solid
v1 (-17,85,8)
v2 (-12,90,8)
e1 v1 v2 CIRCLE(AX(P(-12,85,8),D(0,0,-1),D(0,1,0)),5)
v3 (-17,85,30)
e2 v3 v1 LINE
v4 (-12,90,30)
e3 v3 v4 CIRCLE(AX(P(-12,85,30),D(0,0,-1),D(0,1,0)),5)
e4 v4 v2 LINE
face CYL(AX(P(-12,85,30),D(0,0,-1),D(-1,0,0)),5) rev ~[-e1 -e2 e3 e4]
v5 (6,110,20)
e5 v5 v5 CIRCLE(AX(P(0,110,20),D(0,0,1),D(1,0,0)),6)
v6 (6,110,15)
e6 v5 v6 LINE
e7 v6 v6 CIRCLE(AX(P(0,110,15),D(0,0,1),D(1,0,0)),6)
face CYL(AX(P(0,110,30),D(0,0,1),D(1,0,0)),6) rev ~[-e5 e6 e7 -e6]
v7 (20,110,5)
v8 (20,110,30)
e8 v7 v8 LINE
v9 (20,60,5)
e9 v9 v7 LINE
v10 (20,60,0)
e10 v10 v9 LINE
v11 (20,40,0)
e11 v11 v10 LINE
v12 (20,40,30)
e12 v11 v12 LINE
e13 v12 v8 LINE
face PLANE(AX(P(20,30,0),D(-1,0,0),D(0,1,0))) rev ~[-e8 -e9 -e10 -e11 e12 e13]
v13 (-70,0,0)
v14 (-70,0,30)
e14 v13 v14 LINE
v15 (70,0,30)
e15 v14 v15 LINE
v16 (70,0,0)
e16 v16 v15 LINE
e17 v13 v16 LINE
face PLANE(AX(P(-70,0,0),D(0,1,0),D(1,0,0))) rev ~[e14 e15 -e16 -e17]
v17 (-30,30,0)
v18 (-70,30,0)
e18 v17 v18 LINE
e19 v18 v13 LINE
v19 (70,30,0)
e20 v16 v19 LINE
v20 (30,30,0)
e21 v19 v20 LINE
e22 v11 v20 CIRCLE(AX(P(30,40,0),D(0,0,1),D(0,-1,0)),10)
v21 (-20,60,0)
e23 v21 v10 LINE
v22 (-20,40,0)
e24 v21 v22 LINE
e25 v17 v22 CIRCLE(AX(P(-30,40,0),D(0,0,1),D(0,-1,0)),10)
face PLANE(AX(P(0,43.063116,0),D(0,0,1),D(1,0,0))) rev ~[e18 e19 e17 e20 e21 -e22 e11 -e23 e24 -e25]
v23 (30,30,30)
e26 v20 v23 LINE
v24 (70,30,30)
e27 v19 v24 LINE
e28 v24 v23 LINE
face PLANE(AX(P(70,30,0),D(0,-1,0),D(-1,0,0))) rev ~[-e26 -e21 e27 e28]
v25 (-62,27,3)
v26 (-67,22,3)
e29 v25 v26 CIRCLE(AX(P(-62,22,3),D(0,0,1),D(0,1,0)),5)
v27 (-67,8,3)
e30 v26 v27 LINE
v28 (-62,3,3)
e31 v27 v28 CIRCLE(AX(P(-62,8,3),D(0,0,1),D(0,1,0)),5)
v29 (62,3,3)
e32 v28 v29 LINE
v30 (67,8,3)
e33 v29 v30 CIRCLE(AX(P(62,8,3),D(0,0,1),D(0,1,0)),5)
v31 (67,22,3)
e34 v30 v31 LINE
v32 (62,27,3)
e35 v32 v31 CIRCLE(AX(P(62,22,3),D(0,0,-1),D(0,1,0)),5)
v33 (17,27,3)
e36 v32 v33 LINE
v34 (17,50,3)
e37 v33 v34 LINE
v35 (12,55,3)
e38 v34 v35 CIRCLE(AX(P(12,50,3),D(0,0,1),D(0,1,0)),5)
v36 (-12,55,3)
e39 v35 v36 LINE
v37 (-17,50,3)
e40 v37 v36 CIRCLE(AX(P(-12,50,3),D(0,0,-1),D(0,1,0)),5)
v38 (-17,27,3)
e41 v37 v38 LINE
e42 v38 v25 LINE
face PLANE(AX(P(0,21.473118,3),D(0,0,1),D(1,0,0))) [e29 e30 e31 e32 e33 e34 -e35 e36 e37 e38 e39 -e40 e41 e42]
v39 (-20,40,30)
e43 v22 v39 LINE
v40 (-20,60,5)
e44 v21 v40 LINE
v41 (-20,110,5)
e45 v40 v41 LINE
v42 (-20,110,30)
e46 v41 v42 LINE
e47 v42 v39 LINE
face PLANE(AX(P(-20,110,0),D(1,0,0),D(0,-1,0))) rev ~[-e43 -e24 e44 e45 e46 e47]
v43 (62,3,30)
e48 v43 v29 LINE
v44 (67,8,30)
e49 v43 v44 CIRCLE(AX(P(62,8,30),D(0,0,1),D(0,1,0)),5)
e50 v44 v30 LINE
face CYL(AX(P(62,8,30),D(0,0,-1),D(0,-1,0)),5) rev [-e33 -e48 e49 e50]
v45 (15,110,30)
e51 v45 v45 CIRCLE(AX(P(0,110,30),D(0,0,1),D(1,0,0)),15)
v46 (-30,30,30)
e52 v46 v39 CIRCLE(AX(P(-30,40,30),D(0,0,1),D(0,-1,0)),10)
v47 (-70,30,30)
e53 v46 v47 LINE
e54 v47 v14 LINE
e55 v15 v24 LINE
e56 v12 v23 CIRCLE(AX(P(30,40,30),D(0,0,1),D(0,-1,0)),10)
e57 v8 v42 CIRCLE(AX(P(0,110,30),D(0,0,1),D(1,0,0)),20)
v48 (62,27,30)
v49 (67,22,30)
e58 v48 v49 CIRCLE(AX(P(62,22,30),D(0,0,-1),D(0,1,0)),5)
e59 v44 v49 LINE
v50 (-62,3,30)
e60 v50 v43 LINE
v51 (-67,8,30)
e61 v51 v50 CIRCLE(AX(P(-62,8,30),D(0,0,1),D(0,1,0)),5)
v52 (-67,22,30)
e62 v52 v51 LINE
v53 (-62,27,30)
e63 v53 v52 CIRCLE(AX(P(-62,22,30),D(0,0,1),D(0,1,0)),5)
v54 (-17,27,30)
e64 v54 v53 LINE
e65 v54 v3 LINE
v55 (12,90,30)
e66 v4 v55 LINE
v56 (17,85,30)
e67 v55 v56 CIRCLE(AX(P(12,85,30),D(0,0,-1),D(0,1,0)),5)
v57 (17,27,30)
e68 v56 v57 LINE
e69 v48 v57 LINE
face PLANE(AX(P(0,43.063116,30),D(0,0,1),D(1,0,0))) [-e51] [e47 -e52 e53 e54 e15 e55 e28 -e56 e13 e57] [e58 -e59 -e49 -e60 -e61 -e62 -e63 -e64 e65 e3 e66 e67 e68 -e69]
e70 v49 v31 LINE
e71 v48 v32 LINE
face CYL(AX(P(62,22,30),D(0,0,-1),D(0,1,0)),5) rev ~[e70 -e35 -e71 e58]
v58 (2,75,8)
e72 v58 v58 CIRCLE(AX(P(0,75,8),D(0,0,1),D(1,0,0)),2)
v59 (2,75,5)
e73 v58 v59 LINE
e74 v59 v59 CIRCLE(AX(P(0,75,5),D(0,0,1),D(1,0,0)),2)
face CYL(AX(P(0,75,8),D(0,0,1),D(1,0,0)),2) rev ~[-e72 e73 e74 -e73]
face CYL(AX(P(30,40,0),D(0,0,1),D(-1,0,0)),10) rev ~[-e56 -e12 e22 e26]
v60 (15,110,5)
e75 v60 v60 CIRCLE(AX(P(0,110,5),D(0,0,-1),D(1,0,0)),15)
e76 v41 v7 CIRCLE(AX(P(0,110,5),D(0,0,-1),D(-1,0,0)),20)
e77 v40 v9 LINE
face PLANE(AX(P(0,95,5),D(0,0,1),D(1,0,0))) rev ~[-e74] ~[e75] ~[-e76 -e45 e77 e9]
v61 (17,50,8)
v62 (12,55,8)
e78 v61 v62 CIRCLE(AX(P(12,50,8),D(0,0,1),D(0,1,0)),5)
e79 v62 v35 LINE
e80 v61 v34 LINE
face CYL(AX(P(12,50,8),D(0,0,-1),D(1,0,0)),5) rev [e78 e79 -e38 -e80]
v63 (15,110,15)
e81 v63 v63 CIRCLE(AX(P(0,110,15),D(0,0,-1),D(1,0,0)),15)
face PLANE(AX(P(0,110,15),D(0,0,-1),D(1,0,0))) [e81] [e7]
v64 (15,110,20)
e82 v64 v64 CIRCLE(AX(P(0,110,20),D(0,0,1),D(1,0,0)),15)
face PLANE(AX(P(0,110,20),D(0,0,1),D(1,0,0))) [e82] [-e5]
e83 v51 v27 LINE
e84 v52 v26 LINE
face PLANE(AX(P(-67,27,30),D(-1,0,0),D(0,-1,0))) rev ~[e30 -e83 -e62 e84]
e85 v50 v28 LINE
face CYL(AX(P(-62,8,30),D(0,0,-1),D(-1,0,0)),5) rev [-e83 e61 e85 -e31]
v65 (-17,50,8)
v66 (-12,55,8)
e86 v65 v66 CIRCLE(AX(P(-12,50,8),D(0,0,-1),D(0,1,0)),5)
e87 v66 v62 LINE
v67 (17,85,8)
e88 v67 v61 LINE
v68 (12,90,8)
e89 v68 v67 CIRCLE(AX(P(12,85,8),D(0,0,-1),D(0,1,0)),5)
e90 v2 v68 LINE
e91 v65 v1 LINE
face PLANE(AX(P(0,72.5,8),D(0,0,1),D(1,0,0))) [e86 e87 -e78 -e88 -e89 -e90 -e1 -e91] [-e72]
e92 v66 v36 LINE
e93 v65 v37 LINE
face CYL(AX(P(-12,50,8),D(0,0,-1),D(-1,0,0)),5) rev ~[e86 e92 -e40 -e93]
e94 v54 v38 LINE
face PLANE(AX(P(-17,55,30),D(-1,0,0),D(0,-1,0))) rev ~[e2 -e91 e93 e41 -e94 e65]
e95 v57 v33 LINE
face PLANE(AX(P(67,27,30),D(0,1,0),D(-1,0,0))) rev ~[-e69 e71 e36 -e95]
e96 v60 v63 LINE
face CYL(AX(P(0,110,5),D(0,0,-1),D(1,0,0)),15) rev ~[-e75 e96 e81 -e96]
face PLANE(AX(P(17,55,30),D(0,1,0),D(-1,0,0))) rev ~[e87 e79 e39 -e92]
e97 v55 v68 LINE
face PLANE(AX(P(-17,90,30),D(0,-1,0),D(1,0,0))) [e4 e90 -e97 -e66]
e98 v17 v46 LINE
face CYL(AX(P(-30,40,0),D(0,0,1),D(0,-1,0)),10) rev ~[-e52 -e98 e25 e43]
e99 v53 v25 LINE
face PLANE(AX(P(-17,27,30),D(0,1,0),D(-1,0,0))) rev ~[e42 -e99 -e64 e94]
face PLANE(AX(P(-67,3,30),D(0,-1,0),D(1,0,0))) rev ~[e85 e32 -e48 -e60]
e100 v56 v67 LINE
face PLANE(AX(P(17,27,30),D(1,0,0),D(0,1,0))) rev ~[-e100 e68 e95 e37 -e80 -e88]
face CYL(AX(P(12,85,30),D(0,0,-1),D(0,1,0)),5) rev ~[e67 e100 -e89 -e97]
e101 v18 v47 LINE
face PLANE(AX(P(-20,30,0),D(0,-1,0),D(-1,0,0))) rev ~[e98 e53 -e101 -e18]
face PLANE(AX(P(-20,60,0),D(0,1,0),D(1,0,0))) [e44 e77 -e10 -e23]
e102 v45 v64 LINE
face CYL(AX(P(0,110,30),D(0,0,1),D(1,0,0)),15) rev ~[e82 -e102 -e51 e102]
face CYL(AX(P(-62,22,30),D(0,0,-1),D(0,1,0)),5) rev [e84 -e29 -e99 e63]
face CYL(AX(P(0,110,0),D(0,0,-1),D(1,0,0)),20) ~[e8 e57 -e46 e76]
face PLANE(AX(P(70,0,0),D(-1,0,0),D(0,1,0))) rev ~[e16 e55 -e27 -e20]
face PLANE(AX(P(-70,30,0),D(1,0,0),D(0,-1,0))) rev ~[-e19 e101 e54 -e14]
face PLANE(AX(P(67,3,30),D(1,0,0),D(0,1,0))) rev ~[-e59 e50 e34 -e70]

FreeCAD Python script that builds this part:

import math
import FreeCAD as App
import Part
import Sketcher
from FreeCAD import Vector


def edges_at(feature, points):
    """Names of the edges that pass closest to the given points."""
    edges = feature.Shape.Edges
    near = lambda p: min(range(len(edges)), key=lambda i: edges[i].distToShape(Part.Vertex(*p))[0])
    return sorted({f"Edge{near(p) + 1}" for p in points})

doc = App.newDocument("Part")
body = doc.addObject("PartDesign::Body", "Body")

sketch1 = body.newObject("Sketcher::SketchObject", "Sketch")
sketch1.AttachmentSupport = (doc.getObject("XY_Plane"), [""])
sketch1.MapMode = "FlatFace"
sketch1.addGeometry([
    Part.LineSegment(Vector(20, 30, 0), Vector(20, 110, 0)),
    Part.ArcOfCircle(Part.Circle(Vector(0, 110, 0), Vector(0, 0, 1), 20), math.radians(0), math.radians(180)),
    Part.LineSegment(Vector(-20, 110, 0), Vector(-20, 30, 0)),
    Part.LineSegment(Vector(-20, 30, 0), Vector(-70, 30, 0)),
    Part.LineSegment(Vector(-70, 30, 0), Vector(-70, 0, 0)),
    Part.LineSegment(Vector(-70, 0, 0), Vector(70, 0, 0)),
    Part.LineSegment(Vector(70, 0, 0), Vector(70, 30, 0)),
    Part.LineSegment(Vector(70, 30, 0), Vector(20, 30, 0)),
], False)
sketch1.addConstraint([
    Sketcher.Constraint("Tangent", 0, 2, 1, 1),
    Sketcher.Constraint("Tangent", 1, 2, 2, 1),
    Sketcher.Constraint("Coincident", 2, 2, 3, 1),
    Sketcher.Constraint("Coincident", 3, 2, 4, 1),
    Sketcher.Constraint("Coincident", 4, 2, 5, 1),
    Sketcher.Constraint("Coincident", 5, 2, 6, 1),
    Sketcher.Constraint("Coincident", 6, 2, 7, 1),
    Sketcher.Constraint("Coincident", 7, 2, 0, 1),
    Sketcher.Constraint("Vertical", 0),
    Sketcher.Constraint("Vertical", 2),
    Sketcher.Constraint("Horizontal", 3),
    Sketcher.Constraint("Vertical", 4),
    Sketcher.Constraint("Horizontal", 5),
    Sketcher.Constraint("Vertical", 6),
    Sketcher.Constraint("Horizontal", 7),
    Sketcher.Constraint("Symmetric", 4, 2, 5, 2, -1, 1),
    Sketcher.Constraint("Symmetric", 2, 2, 7, 2, -2),
    Sketcher.Constraint("Radius", 1, 20.0),
    Sketcher.Constraint("DistanceX", 3, 2, 3, 1, 50.0),
    Sketcher.Constraint("DistanceY", 0, 1, 0, 2, 80.0),
    Sketcher.Constraint("DistanceY", 4, 2, 4, 1, 30.0),
])
pad1 = body.newObject("PartDesign::Pad", "Pad")
pad1.Profile = sketch1
pad1.Length = 30

sketch2 = body.newObject("Sketcher::SketchObject", "Sketch001")
sketch2.AttachmentSupport = (doc.getObject("XY_Plane"), [""])
sketch2.MapMode = "FlatFace"
sketch2.addGeometry([
    Part.LineSegment(Vector(-20, 130, 0), Vector(-20, 60, 0)),
    Part.LineSegment(Vector(-20, 60, 0), Vector(20, 60, 0)),
    Part.LineSegment(Vector(20, 60, 0), Vector(20, 130, 0)),
    Part.LineSegment(Vector(20, 130, 0), Vector(-20, 130, 0)),
], False)
sketch2.addConstraint([
    Sketcher.Constraint("Coincident", 0, 2, 1, 1),
    Sketcher.Constraint("Coincident", 1, 2, 2, 1),
    Sketcher.Constraint("Coincident", 2, 2, 3, 1),
    Sketcher.Constraint("Coincident", 3, 2, 0, 1),
    Sketcher.Constraint("Vertical", 0),
    Sketcher.Constraint("Horizontal", 1),
    Sketcher.Constraint("Vertical", 2),
    Sketcher.Constraint("Horizontal", 3),
    Sketcher.Constraint("DistanceX", 1, 1, 1, 2, 40.0),
    Sketcher.Constraint("DistanceY", 0, 2, 0, 1, 70.0),
    Sketcher.Constraint("DistanceX", 0, 2, -1, 1, 20.0),
    Sketcher.Constraint("DistanceY", -1, 1, 0, 2, 60.0),
])
pocket1 = body.newObject("PartDesign::Pocket", "Pocket")
pocket1.Profile = sketch2
pocket1.Length = 5
pocket1.Reversed = True

sketch3 = body.newObject("Sketcher::SketchObject", "Sketch002")
sketch3.AttachmentSupport = (doc.getObject("XY_Plane"), [""])
sketch3.MapMode = "FlatFace"
sketch3.AttachmentOffset = App.Placement(Vector(0, 0, 30), App.Rotation())
sketch3.addGeometry([
    Part.LineSegment(Vector(-17, 55, 0), Vector(-17, 27, 0)),
    Part.LineSegment(Vector(-17, 27, 0), Vector(-67, 27, 0)),
    Part.LineSegment(Vector(-67, 27, 0), Vector(-67, 3, 0)),
    Part.LineSegment(Vector(-67, 3, 0), Vector(67, 3, 0)),
    Part.LineSegment(Vector(67, 3, 0), Vector(67, 27, 0)),
    Part.LineSegment(Vector(67, 27, 0), Vector(17, 27, 0)),
    Part.LineSegment(Vector(17, 27, 0), Vector(17, 55, 0)),
    Part.LineSegment(Vector(17, 55, 0), Vector(-17, 55, 0)),
], False)
sketch3.addConstraint([
    Sketcher.Constraint("Coincident", 0, 2, 1, 1),
    Sketcher.Constraint("Coincident", 1, 2, 2, 1),
    Sketcher.Constraint("Coincident", 2, 2, 3, 1),
    Sketcher.Constraint("Coincident", 3, 2, 4, 1),
    Sketcher.Constraint("Coincident", 4, 2, 5, 1),
    Sketcher.Constraint("Coincident", 5, 2, 6, 1),
    Sketcher.Constraint("Coincident", 6, 2, 7, 1),
    Sketcher.Constraint("Coincident", 7, 2, 0, 1),
    Sketcher.Constraint("Vertical", 0),
    Sketcher.Constraint("Horizontal", 1),
    Sketcher.Constraint("Vertical", 2),
    Sketcher.Constraint("Horizontal", 3),
    Sketcher.Constraint("Vertical", 4),
    Sketcher.Constraint("Horizontal", 5),
    Sketcher.Constraint("Vertical", 6),
    Sketcher.Constraint("Horizontal", 7),
    Sketcher.Constraint("Symmetric", 1, 2, 4, 2, -2),
    Sketcher.Constraint("Equal", 1, 5),
    Sketcher.Constraint("DistanceX", 1, 2, 1, 1, 50.0),
    Sketcher.Constraint("DistanceX", 3, 1, 3, 2, 134.0),
    Sketcher.Constraint("DistanceY", 0, 2, 0, 1, 28.0),
    Sketcher.Constraint("DistanceY", 2, 2, 2, 1, 24.0),
    Sketcher.Constraint("DistanceY", -1, 1, 0, 2, 27.0),
])
pocket2 = body.newObject("PartDesign::Pocket", "Pocket001")
pocket2.Profile = sketch3
pocket2.Length = 27

sketch4 = body.newObject("Sketcher::SketchObject", "Sketch003")
sketch4.AttachmentSupport = (doc.getObject("XY_Plane"), [""])
sketch4.MapMode = "FlatFace"
sketch4.AttachmentOffset = App.Placement(Vector(0, 0, 30), App.Rotation())
sketch4.addGeometry([
    Part.LineSegment(Vector(-17, 90, 0), Vector(-17, 55, 0)),
    Part.LineSegment(Vector(-17, 55, 0), Vector(17, 55, 0)),
    Part.LineSegment(Vector(17, 55, 0), Vector(17, 90, 0)),
    Part.LineSegment(Vector(17, 90, 0), Vector(-17, 90, 0)),
], False)
sketch4.addConstraint([
    Sketcher.Constraint("Coincident", 0, 2, 1, 1),
    Sketcher.Constraint("Coincident", 1, 2, 2, 1),
    Sketcher.Constraint("Coincident", 2, 2, 3, 1),
    Sketcher.Constraint("Coincident", 3, 2, 0, 1),
    Sketcher.Constraint("Vertical", 0),
    Sketcher.Constraint("Horizontal", 1),
    Sketcher.Constraint("Vertical", 2),
    Sketcher.Constraint("Horizontal", 3),
    Sketcher.Constraint("DistanceX", 1, 1, 1, 2, 34.0),
    Sketcher.Constraint("DistanceY", 0, 2, 0, 1, 35.0),
    Sketcher.Constraint("DistanceX", 0, 2, -1, 1, 17.0),
    Sketcher.Constraint("DistanceY", -1, 1, 0, 2, 55.0),
])
pocket3 = body.newObject("PartDesign::Pocket", "Pocket002")
pocket3.Profile = sketch4
pocket3.Length = 22

sketch5 = body.newObject("Sketcher::SketchObject", "Sketch004")
sketch5.AttachmentSupport = (doc.getObject("XY_Plane"), [""])
sketch5.MapMode = "FlatFace"
sketch5.AttachmentOffset = App.Placement(Vector(0, 0, 30), App.Rotation())
sketch5.addGeometry(Part.Circle(Vector(0, 110, 0), Vector(0, 0, 1), 15), False)
sketch5.addConstraint([
    Sketcher.Constraint("PointOnObject", 0, 3, -2),
    Sketcher.Constraint("Diameter", 0, 30.0),
    Sketcher.Constraint("DistanceY", -1, 1, 0, 3, 110.0),
])
pocket4 = body.newObject("PartDesign::Pocket", "Pocket003")
pocket4.Profile = sketch5
pocket4.Length = 10

sketch6 = body.newObject("Sketcher::SketchObject", "Sketch005")
sketch6.AttachmentSupport = (doc.getObject("XY_Plane"), [""])
sketch6.MapMode = "FlatFace"
sketch6.AttachmentOffset = App.Placement(Vector(0, 0, 30), App.Rotation())
sketch6.addGeometry(Part.Circle(Vector(0, 110, 0), Vector(0, 0, 1), 6), False)
sketch6.addConstraint([
    Sketcher.Constraint("PointOnObject", 0, 3, -2),
    Sketcher.Constraint("Diameter", 0, 12.0),
    Sketcher.Constraint("DistanceY", -1, 1, 0, 3, 110.0),
])
pocket5 = body.newObject("PartDesign::Pocket", "Pocket004")
pocket5.Profile = sketch6
pocket5.Type = "ThroughAll"
doc.recompute()

fillet = body.newObject("PartDesign::Fillet", "Fillet")
fillet.Base = (pocket5, edges_at(pocket5, [(20, 30, 15), (-20, 30, 15)]))
fillet.Radius = 10
doc.recompute()

fillet2 = body.newObject("PartDesign::Fillet", "Fillet001")
fillet2.Base = (fillet, edges_at(fillet, [
    (-17, 90, 19),
    (-67, 27, 16.5),
    (17, 90, 19),
    (67, 27, 16.5),
    (-67, 3, 16.5),
    (67, 3, 16.5),
    (-17, 55, 5.5),
    (17, 55, 5.5),
]))
fillet2.Radius = 5

sketch7 = body.newObject("Sketcher::SketchObject", "Sketch006")
sketch7.AttachmentSupport = (doc.getObject("XY_Plane"), [""])
sketch7.MapMode = "FlatFace"
sketch7.AttachmentOffset = App.Placement(Vector(0, 0, 5), App.Rotation())
sketch7.addGeometry(Part.Circle(Vector(0, 110, 0), Vector(0, 0, 1), 15), False)
sketch7.addConstraint([
    Sketcher.Constraint("PointOnObject", 0, 3, -2),
    Sketcher.Constraint("Diameter", 0, 30.0),
    Sketcher.Constraint("DistanceY", -1, 1, 0, 3, 110.0),
])
pocket6 = body.newObject("PartDesign::Pocket", "Pocket005")
pocket6.Profile = sketch7
pocket6.Length = 10
pocket6.Reversed = True

sketch8 = body.newObject("Sketcher::SketchObject", "Sketch007")
sketch8.AttachmentSupport = (doc.getObject("XY_Plane"), [""])
sketch8.MapMode = "FlatFace"
sketch8.AttachmentOffset = App.Placement(Vector(0, 0, 8), App.Rotation())
sketch8.addGeometry(Part.Circle(Vector(0, 75, 0), Vector(0, 0, 1), 2), False)
sketch8.addConstraint([
    Sketcher.Constraint("PointOnObject", 0, 3, -2),
    Sketcher.Constraint("Diameter", 0, 4.0),
    Sketcher.Constraint("DistanceY", -1, 1, 0, 3, 75.0),
])
pocket7 = body.newObject("PartDesign::Pocket", "Pocket006")
pocket7.Profile = sketch8
pocket7.Type = "ThroughAll"

doc.recompute()
